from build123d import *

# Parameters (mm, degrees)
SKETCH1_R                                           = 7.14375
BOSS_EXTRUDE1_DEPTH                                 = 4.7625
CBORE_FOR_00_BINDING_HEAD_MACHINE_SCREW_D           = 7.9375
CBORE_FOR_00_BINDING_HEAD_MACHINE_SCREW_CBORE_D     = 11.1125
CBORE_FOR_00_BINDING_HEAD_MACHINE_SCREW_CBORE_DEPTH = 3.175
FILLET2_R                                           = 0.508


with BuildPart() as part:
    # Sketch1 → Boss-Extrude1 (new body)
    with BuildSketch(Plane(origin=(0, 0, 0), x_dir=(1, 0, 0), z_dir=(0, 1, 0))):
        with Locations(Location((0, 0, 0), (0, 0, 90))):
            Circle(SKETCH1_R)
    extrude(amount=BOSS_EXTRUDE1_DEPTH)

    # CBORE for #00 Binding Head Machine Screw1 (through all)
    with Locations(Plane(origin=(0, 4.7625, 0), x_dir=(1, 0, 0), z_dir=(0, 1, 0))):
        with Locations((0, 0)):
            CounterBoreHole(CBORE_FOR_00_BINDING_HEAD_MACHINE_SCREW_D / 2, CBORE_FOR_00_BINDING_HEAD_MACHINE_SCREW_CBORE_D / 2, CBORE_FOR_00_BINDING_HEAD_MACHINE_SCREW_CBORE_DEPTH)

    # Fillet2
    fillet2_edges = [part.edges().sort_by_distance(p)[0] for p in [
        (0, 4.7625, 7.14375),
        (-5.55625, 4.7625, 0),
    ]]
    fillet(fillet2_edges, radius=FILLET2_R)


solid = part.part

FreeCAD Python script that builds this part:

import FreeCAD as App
import Part
import Sketcher
from FreeCAD import Vector
Q = App.Units.Quantity


def edges_at(feature, points):
    """Names of the edges that pass closest to the given points."""
    edges = feature.Shape.Edges
    near = lambda p: min(range(len(edges)), key=lambda i: edges[i].distToShape(Part.Vertex(*p))[0])
    return sorted({f"Edge{near(p) + 1}" for p in points})

doc = App.newDocument("Part")
body = doc.addObject("PartDesign::Body", "Body")

# Sketch on XZ plane
sketch1 = doc.addObject("Sketcher::SketchObject", "Sketch")
body.addObject(sketch1)
sketch1.AttachmentSupport = (doc.XZ_Plane, [""])
sketch1.MapMode = "FlatFace"
sketch1.addGeometry(Part.Circle(Vector(0, 0, 0), Vector(0, 0, 1), 7), False)
sketch1.addConstraint([
    Sketcher.Constraint("Coincident", 0, 3, -1, 1),
    Sketcher.Constraint("Diameter", 0, Q("0.5625 in")),
])
pad1 = doc.addObject("PartDesign::Pad", "Pad")
body.addObject(pad1)
pad1.Profile = sketch1
pad1.Length = Q("0.1875 in")
pad1.Reversed = True

# Sketch on XZ plane
sketch2 = doc.addObject("Sketcher::SketchObject", "Sketch001")
body.addObject(sketch2)
sketch2.AttachmentSupport = (doc.XZ_Plane, [""])
sketch2.MapMode = "FlatFace"
sketch2.AttachmentOffset = App.Placement(Vector(0, 0, -0.1875 * 25.4), App.Rotation())
sketch2.addGeometry(Part.Circle(Vector(0, 0, 0), Vector(0, 0, 1), 4), False)
sketch2.addConstraint([
    Sketcher.Constraint("Coincident", 0, 3, -1, 1),
    Sketcher.Constraint("Diameter", 0, Q("0.3125 in")),
])
doc.recompute()
hole = doc.addObject("PartDesign::Hole", "Hole")
body.addObject(hole)
hole.Profile = sketch2
hole.ThreadType = "None"
hole.Diameter = Q("0.3125 in")
hole.DepthType = "ThroughAll"
hole.HoleCutType = "Counterbore"
hole.HoleCutDiameter = Q("0.4375 in")
hole.HoleCutDepth = Q("0.125 in")
hole.Reversed = True
doc.recompute()

fillet = doc.addObject("PartDesign::Fillet", "Fillet")
body.addObject(fillet)
fillet.Base = (hole, edges_at(hole, [(0, 4.763, 7.144), (-5.556, 4.763, 0)]))
fillet.Radius = Q("0.02 in")

doc.recompute()
